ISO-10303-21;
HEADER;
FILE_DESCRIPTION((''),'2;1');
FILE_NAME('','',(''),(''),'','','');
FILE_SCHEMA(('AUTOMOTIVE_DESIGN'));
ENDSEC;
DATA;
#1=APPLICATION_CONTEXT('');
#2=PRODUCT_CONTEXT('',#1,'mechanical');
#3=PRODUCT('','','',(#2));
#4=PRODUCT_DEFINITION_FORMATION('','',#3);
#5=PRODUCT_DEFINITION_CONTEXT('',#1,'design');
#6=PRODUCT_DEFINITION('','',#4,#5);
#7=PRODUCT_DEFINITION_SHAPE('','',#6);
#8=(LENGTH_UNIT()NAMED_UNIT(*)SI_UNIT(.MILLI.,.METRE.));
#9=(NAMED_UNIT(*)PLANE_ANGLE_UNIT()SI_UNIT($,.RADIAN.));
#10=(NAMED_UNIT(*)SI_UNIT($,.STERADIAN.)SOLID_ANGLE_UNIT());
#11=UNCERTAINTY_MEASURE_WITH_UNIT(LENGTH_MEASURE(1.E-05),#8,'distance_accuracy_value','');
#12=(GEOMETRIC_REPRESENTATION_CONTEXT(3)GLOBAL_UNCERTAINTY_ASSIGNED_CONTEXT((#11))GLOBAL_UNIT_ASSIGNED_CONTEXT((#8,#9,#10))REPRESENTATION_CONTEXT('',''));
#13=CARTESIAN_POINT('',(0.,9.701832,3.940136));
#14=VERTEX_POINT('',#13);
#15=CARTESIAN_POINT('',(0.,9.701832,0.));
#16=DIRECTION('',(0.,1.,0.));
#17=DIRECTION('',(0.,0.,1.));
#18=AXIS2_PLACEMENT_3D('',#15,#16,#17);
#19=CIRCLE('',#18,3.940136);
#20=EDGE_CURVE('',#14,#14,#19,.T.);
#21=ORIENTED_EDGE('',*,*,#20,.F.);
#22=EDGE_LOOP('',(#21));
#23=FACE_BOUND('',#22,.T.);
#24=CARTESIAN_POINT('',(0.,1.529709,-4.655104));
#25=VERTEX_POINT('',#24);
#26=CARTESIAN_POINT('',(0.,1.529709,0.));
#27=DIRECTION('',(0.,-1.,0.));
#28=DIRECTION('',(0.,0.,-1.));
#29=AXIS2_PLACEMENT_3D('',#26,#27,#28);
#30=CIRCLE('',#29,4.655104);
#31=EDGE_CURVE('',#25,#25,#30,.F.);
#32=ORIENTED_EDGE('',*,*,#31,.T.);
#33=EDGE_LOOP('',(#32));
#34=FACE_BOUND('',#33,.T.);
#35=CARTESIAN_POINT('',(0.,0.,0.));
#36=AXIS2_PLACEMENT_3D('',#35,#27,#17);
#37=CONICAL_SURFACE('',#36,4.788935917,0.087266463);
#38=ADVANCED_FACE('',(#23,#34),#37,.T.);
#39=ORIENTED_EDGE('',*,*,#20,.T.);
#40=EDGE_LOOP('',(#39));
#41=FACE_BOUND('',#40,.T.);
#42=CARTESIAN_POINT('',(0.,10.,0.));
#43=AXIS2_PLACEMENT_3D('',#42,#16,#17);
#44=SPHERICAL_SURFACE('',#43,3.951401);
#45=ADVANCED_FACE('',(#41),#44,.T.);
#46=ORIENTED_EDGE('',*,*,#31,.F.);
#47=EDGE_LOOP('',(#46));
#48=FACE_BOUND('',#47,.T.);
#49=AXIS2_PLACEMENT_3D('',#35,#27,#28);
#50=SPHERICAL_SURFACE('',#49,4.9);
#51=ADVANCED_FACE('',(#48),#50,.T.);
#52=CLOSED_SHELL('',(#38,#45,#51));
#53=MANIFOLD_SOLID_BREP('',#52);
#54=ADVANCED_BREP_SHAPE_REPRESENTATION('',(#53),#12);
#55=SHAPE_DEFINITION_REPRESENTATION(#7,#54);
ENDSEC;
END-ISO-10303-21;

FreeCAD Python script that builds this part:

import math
import FreeCAD as App
import Part
import Sketcher
from FreeCAD import Vector

doc = App.newDocument("Part")
body = doc.addObject("PartDesign::Body", "Body")

sketch1 = body.newObject("Sketcher::SketchObject", "Sketch")
sketch1.AttachmentSupport = (doc.getObject("XZ_Plane"), [""])
sketch1.MapMode = "FlatFace"
sketch1.addGeometry([
    Part.LineSegment(Vector(0, -4.9, 0), Vector(0, 4.9, 0)),
    Part.ArcOfCircle(Part.Circle(Vector(0, 0, 0), Vector(0, 0, 1), 4.9), math.radians(-90), math.radians(90)),
], False)
sketch1.addConstraint([
    Sketcher.Constraint("Coincident", 0, 1, 1, 1),
    Sketcher.Constraint("Coincident", 1, 2, 0, 2),
    Sketcher.Constraint("Vertical", 0),
    Sketcher.Constraint("Coincident", 1, 3, -1, 1),
    Sketcher.Constraint("PointOnObject", 0, 1, -2),
    Sketcher.Constraint("Radius", 1, 4.9),
])
revolution = body.newObject("PartDesign::Revolution", "Revolution")
revolution.Profile = sketch1
revolution.ReferenceAxis = (sketch1, ["V_Axis"])
revolution.Angle = 360

sketch2 = body.newObject("Sketcher::SketchObject", "Sketch001")
sketch2.AttachmentSupport = (doc.getObject("XZ_Plane"), [""])
sketch2.MapMode = "FlatFace"
sketch2.addGeometry(Part.Circle(Vector(0, 0, 0), Vector(0, 0, 1), 4.8), False)
sketch2.addConstraint([
    Sketcher.Constraint("Coincident", 0, 3, -1, 1),
    Sketcher.Constraint("Diameter", 0, 9.577872),
])
pad1 = body.newObject("PartDesign::Pad", "Pad")
pad1.Profile = sketch2
pad1.Length = 10
pad1.Reversed = True
pad1.TaperAngle = -5

sketch3 = body.newObject("Sketcher::SketchObject", "Sketch002")
sketch3.AttachmentSupport = (doc.getObject("XZ_Plane"), [""])
sketch3.MapMode = "FlatFace"
sketch3.AttachmentOffset = App.Placement(Vector(0, 0, -10), App.Rotation())
sketch3.addGeometry([
    Part.LineSegment(Vector(0, -4, 0), Vector(0, 4, 0)),
    Part.ArcOfCircle(Part.Circle(Vector(0, 0, 0), Vector(0, 0, 1), 4), math.radians(-90), math.radians(90)),
], False)
sketch3.addConstraint([
    Sketcher.Constraint("Coincident", 0, 1, 1, 1),
    Sketcher.Constraint("Coincident", 1, 2, 0, 2),
    Sketcher.Constraint("Vertical", 0),
    Sketcher.Constraint("Coincident", 1, 3, -1, 1),
    Sketcher.Constraint("PointOnObject", 0, 1, -2),
    Sketcher.Constraint("Radius", 1, 3.951401),
])
revolution2 = body.newObject("PartDesign::Revolution", "Revolution001")
revolution2.Profile = sketch3
revolution2.ReferenceAxis = (sketch3, ["V_Axis"])
revolution2.Angle = 360

doc.recompute()
